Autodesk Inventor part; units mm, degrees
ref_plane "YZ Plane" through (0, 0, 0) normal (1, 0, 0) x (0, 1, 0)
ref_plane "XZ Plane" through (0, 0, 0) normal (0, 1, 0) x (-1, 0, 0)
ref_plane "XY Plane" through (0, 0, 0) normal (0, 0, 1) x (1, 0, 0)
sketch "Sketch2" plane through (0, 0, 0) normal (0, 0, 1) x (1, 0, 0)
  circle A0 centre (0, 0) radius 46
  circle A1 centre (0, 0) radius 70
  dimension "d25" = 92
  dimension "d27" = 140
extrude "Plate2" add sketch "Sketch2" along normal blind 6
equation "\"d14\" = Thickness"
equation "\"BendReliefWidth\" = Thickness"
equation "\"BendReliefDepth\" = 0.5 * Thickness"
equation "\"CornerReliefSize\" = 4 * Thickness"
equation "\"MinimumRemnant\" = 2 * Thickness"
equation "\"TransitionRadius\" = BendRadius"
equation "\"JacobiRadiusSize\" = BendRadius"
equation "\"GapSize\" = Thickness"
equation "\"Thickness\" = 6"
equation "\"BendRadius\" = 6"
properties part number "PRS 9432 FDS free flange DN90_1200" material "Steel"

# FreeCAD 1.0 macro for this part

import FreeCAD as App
import Part
import Sketcher
from FreeCAD import Vector
Q = App.Units.Quantity

doc = App.newDocument("Part")
body = doc.addObject("PartDesign::Body", "Body")

# Sketch on XY plane
sketch1 = doc.addObject("Sketcher::SketchObject", "Sketch")
body.addObject(sketch1)
sketch1.AttachmentSupport = (doc.XY_Plane, [""])
sketch1.MapMode = "FlatFace"
sketch1.addGeometry(Part.Circle(Vector(0, 0, 0), Vector(0, 0, 1), 70), False)
sketch1.addGeometry(Part.Circle(Vector(0, 0, 0), Vector(0, 0, 1), 46), False)
sketch1.addConstraint(Sketcher.Constraint("Coincident", 0, 3, -1, 1))
sketch1.addConstraint(Sketcher.Constraint("Coincident", 1, 3, -1, 1))
sketch1.addConstraint(Sketcher.Constraint("Diameter", 0, Q("140 mm")))
sketch1.addConstraint(Sketcher.Constraint("Diameter", 1, Q("92 mm")))
pad1 = doc.addObject("PartDesign::Pad", "Pad")
body.addObject(pad1)
pad1.Profile = sketch1
pad1.Length = 6

doc.recompute()
